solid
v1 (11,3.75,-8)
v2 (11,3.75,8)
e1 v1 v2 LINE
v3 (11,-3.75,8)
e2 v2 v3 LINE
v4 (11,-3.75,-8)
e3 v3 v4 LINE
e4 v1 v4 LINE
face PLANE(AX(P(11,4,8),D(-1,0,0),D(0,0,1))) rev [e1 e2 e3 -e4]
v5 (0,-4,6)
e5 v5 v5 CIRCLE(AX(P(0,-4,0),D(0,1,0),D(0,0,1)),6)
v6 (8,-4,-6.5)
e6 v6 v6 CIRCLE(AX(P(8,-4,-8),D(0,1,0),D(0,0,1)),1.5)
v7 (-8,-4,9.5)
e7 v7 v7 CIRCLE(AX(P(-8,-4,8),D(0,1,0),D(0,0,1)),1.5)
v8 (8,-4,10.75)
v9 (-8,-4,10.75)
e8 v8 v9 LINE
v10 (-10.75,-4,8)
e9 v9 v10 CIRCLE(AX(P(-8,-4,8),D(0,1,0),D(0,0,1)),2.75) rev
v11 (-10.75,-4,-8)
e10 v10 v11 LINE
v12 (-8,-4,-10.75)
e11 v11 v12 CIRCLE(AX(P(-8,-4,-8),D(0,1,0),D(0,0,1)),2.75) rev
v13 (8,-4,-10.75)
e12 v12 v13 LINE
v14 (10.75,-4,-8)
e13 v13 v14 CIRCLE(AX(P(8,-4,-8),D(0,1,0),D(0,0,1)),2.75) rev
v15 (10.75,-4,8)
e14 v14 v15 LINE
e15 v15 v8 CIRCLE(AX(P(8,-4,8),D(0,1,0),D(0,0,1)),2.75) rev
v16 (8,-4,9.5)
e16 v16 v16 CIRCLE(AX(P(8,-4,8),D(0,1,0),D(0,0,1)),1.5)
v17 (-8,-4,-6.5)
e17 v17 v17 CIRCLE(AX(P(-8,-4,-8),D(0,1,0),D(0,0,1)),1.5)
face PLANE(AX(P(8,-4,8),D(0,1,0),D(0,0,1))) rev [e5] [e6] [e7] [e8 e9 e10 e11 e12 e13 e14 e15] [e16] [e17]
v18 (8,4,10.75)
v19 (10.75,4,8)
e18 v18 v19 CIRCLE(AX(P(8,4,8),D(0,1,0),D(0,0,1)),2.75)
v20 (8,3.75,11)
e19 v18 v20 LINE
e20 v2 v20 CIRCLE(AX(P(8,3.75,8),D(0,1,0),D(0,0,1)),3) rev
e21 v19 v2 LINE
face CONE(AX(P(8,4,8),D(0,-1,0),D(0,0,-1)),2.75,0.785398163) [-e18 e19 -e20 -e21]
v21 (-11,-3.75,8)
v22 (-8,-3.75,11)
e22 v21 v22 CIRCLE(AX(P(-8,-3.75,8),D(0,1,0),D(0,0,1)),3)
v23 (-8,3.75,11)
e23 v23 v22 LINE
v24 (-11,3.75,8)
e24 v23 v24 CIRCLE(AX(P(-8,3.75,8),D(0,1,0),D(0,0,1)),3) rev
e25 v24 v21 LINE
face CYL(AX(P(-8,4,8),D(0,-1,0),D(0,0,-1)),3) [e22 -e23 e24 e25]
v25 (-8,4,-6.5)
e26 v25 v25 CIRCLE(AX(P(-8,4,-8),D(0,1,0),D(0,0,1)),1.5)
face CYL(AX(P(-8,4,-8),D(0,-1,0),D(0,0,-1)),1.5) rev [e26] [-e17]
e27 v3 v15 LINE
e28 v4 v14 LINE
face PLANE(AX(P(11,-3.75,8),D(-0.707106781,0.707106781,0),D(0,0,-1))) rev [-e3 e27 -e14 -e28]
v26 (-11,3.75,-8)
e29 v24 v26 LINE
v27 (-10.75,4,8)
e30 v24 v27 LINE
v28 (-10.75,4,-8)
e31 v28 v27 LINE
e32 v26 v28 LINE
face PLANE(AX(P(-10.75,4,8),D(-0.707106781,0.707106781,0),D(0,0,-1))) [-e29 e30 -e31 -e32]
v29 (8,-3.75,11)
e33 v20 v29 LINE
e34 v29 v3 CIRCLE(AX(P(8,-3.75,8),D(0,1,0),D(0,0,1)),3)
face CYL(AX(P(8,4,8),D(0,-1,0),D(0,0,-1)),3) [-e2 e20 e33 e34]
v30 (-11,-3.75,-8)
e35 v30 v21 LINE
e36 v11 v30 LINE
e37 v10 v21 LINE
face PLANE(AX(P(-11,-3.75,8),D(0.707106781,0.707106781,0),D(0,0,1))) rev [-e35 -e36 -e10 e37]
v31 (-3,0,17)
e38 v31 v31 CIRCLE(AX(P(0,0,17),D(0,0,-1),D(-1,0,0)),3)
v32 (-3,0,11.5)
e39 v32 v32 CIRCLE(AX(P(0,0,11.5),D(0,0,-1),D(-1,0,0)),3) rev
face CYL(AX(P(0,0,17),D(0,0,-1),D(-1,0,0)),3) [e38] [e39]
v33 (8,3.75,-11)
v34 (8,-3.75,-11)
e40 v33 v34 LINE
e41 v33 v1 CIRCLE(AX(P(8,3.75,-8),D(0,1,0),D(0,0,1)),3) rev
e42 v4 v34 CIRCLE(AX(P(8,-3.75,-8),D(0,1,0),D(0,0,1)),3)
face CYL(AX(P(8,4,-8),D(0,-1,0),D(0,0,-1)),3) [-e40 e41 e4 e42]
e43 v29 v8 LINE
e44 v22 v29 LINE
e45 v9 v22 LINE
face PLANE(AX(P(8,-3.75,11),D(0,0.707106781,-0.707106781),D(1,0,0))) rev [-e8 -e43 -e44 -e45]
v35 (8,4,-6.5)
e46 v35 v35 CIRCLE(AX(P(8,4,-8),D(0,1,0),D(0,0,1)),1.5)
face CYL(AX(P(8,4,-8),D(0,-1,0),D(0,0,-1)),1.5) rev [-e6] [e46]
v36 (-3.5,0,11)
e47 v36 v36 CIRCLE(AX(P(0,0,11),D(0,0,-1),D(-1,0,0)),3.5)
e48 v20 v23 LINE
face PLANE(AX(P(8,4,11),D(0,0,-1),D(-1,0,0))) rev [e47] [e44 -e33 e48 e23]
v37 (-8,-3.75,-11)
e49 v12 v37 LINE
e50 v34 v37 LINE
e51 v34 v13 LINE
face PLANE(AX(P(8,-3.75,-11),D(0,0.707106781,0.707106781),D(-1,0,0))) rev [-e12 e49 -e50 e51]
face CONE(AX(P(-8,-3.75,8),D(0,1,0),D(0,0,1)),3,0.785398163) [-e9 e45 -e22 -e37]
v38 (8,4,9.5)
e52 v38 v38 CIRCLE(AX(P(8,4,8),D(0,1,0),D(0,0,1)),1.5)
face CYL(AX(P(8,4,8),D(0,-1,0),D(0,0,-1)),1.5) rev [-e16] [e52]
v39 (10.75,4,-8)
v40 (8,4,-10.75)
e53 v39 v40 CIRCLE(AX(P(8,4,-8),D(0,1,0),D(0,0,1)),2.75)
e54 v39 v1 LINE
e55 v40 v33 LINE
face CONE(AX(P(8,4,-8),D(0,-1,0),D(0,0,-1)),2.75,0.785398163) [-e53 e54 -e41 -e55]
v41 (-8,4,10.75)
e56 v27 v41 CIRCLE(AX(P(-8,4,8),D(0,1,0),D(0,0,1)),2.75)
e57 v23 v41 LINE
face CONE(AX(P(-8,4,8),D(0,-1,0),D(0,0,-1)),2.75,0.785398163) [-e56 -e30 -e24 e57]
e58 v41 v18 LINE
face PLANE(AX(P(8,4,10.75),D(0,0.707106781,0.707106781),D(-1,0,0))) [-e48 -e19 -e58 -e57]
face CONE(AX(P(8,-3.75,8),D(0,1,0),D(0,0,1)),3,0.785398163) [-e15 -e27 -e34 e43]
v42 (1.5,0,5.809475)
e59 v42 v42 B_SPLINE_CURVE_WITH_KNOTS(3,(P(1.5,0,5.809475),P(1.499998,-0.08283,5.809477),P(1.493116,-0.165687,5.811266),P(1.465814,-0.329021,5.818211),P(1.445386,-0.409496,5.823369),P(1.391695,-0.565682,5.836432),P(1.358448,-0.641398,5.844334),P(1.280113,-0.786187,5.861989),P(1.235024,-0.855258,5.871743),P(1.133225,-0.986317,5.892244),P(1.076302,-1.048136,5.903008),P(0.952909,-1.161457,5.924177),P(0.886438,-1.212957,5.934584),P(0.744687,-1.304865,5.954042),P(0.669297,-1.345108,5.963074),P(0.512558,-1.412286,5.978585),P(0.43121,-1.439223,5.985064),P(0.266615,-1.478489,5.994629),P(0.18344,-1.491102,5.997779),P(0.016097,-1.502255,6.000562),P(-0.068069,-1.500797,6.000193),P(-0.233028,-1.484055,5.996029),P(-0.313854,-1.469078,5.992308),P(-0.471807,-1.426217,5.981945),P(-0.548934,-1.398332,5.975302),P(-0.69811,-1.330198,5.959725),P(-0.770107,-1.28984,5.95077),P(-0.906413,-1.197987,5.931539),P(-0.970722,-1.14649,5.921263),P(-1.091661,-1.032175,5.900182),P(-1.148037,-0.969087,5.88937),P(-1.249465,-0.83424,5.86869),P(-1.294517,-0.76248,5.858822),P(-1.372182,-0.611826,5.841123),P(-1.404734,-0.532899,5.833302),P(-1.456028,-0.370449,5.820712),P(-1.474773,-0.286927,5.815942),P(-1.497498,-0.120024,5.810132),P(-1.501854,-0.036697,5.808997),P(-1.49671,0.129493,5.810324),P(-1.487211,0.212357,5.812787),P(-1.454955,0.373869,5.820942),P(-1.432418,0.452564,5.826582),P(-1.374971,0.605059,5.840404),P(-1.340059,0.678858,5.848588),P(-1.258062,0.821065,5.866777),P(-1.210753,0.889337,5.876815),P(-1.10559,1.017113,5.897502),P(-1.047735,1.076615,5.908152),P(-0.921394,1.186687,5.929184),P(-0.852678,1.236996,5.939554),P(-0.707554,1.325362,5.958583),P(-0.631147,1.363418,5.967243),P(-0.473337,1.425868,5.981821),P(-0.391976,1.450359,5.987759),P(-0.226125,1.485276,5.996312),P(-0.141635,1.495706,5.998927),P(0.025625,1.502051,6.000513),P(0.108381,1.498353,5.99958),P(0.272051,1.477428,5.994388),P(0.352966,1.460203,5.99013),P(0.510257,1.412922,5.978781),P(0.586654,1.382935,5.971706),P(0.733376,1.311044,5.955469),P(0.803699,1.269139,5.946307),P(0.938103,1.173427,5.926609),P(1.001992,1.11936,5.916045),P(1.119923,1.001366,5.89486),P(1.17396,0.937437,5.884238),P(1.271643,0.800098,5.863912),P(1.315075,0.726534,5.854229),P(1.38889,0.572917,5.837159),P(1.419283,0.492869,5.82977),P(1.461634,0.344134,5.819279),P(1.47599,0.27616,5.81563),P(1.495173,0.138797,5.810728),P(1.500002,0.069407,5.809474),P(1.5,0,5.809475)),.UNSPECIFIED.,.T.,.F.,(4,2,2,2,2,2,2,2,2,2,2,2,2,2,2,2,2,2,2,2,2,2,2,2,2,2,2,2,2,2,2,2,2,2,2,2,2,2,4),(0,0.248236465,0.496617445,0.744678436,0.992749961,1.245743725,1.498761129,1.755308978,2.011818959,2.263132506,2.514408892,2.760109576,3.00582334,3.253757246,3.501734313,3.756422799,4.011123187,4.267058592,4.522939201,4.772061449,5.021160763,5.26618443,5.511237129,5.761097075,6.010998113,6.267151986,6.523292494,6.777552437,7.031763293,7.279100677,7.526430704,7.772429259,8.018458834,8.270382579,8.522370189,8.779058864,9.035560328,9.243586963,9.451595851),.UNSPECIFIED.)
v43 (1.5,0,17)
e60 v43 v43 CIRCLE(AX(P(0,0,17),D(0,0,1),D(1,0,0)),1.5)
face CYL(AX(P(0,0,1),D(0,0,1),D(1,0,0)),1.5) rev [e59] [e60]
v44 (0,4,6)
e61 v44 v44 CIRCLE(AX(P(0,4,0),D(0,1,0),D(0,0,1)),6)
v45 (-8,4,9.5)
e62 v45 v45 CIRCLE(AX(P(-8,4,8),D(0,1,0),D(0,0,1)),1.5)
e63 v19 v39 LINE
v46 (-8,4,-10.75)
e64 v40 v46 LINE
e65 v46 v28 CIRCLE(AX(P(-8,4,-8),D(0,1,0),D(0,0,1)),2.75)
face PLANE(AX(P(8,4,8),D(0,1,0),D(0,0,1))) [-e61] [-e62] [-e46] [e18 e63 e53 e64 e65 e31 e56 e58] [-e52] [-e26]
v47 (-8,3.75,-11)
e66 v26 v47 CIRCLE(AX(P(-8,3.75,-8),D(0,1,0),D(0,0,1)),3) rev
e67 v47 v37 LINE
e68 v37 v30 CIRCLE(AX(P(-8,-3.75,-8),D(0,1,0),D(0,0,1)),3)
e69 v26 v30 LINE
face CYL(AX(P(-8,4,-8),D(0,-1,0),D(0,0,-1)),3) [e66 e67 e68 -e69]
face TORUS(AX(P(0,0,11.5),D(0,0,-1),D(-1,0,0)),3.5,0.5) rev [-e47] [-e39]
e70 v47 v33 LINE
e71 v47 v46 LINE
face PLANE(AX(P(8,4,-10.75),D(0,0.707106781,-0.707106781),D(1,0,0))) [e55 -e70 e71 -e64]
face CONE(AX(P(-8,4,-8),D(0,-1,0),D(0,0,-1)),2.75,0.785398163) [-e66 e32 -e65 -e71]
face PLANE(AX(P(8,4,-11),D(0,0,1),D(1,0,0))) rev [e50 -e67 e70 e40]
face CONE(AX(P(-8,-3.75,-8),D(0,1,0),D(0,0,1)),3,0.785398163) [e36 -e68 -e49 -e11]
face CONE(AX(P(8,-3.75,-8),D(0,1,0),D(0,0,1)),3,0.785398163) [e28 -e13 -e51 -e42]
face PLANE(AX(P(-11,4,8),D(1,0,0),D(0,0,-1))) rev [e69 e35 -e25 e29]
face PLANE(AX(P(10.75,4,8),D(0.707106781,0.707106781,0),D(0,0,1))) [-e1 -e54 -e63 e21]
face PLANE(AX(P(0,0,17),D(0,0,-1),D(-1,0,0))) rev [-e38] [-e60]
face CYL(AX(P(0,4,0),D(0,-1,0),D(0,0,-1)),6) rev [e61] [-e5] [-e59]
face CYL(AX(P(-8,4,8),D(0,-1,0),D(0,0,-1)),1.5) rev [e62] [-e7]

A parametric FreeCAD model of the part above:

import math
import FreeCAD as App
import Part
import Sketcher
from FreeCAD import Vector


def edges_at(feature, points):
    """Names of the edges that pass closest to the given points."""
    edges = feature.Shape.Edges
    near = lambda p: min(range(len(edges)), key=lambda i: edges[i].distToShape(Part.Vertex(*p))[0])
    return sorted({f"Edge{near(p) + 1}" for p in points})

doc = App.newDocument("Part")
params = doc.addObject("Spreadsheet::Sheet", "Params")
for row, (alias, value) in enumerate([
    ("sketch1_diameter", "3 mm"),
    ("sketch1_diameter2", "12 mm"),
    ("sketch1_radius", "3 mm"),
    ("sketch1_width", "16 mm"),
    ("pad1_length", "8 mm"),
    ("sketch2_diameter", "6 mm"),
    ("pad2_length", "6 mm"),
    ("sketch3_diameter", "3 mm"),
    ("pocket1_length", "16 mm"),
    ("chamfer_size", "0.25 mm"),
    ("fillet_radius", "0.5 mm"),
], start=1):
    params.set(f"A{row}", alias)
    params.set(f"B{row}", "=" + value)
    params.setAlias(f"B{row}", alias)

body = doc.addObject("PartDesign::Body", "Body")

sketch1 = body.newObject("Sketcher::SketchObject", "Sketch")
sketch1.AttachmentSupport = (doc.getObject("XZ_Plane"), [""])
sketch1.MapMode = "FlatFace"
sketch1.addGeometry([
    Part.LineSegment(Vector(-8, 11, 0), Vector(8, 11, 0)),
    Part.ArcOfCircle(Part.Circle(Vector(8, 8, 0), Vector(0, 0, 1), 3), math.radians(0), math.radians(90)),
    Part.LineSegment(Vector(11, 8, 0), Vector(11, -8, 0)),
    Part.ArcOfCircle(Part.Circle(Vector(8, -8, 0), Vector(0, 0, 1), 3), math.radians(-90), math.radians(0)),
    Part.LineSegment(Vector(8, -11, 0), Vector(-8, -11, 0)),
    Part.ArcOfCircle(Part.Circle(Vector(-8, -8, 0), Vector(0, 0, 1), 3), math.radians(180), math.radians(270)),
    Part.LineSegment(Vector(-11, -8, 0), Vector(-11, 8, 0)),
    Part.ArcOfCircle(Part.Circle(Vector(-8, 8, 0), Vector(0, 0, 1), 3), math.radians(90), math.radians(180)),
    Part.Circle(Vector(8, 8, 0), Vector(0, 0, 1), 1.5),
    Part.Circle(Vector(-8, 8, 0), Vector(0, 0, 1), 1.5),
    Part.Circle(Vector(8, -8, 0), Vector(0, 0, 1), 1.5),
    Part.Circle(Vector(0, 0, 0), Vector(0, 0, 1), 6),
    Part.Circle(Vector(-8, -8, 0), Vector(0, 0, 1), 1.5),
], False)
sketch1.addConstraint([
    Sketcher.Constraint("Tangent", 0, 2, 1, 2),
    Sketcher.Constraint("Tangent", 1, 1, 2, 1),
    Sketcher.Constraint("Tangent", 2, 2, 3, 2),
    Sketcher.Constraint("Tangent", 3, 1, 4, 1),
    Sketcher.Constraint("Tangent", 4, 2, 5, 2),
    Sketcher.Constraint("Tangent", 5, 1, 6, 1),
    Sketcher.Constraint("Tangent", 6, 2, 7, 2),
    Sketcher.Constraint("Tangent", 7, 1, 0, 1),
    Sketcher.Constraint("Horizontal", 0),
    Sketcher.Constraint("Vertical", 2),
    Sketcher.Constraint("Horizontal", 4),
    Sketcher.Constraint("Vertical", 6),
    Sketcher.Constraint("Coincident", 11, 3, -1, 1),
    Sketcher.Constraint("Coincident", 8, 3, 1, 3),
    Sketcher.Constraint("Coincident", 9, 3, 7, 3),
    Sketcher.Constraint("Coincident", 10, 3, 3, 3),
    Sketcher.Constraint("Coincident", 12, 3, 5, 3),
    Sketcher.Constraint("Equal", 1, 3),
    Sketcher.Constraint("Equal", 3, 5),
    Sketcher.Constraint("Equal", 5, 7),
    Sketcher.Constraint("Equal", 8, 9),
    Sketcher.Constraint("Equal", 9, 10),
    Sketcher.Constraint("Equal", 10, 12),
    Sketcher.Constraint("Symmetric", 1, 3, 5, 3, -1, 1),
    Sketcher.Constraint("Equal", 4, 2),
    Sketcher.Constraint("Diameter", 8, 3.0),
    Sketcher.Constraint("Diameter", 11, 12.0),
    Sketcher.Constraint("Radius", 1, 3.0),
    Sketcher.Constraint("DistanceX", 0, 1, 0, 2, 16.0),
])
sketch1.setExpression("Constraints[25]", "Params.sketch1_diameter")
sketch1.setExpression("Constraints[26]", "Params.sketch1_diameter2")
sketch1.setExpression("Constraints[27]", "Params.sketch1_radius")
sketch1.setExpression("Constraints[28]", "Params.sketch1_width")
pad1 = body.newObject("PartDesign::Pad", "Pad")
pad1.Profile = sketch1
pad1.setExpression("Length", "Params.pad1_length")
pad1.Midplane = True

sketch2 = body.newObject("Sketcher::SketchObject", "Sketch001")
sketch2.AttachmentSupport = (doc.getObject("XY_Plane"), [""])
sketch2.MapMode = "FlatFace"
sketch2.AttachmentOffset = App.Placement(Vector(0, 0, 11), App.Rotation())
sketch2.addGeometry(Part.Circle(Vector(0, 0, 0), Vector(0, 0, 1), 3), False)
sketch2.addConstraint([
    Sketcher.Constraint("Coincident", 0, 3, -1, 1),
    Sketcher.Constraint("Diameter", 0, 6.0),
])
sketch2.setExpression("Constraints[1]", "Params.sketch2_diameter")
pad2 = body.newObject("PartDesign::Pad", "Pad001")
pad2.Profile = sketch2
pad2.setExpression("Length", "Params.pad2_length")

sketch3 = body.newObject("Sketcher::SketchObject", "Sketch002")
sketch3.AttachmentSupport = (doc.getObject("XY_Plane"), [""])
sketch3.MapMode = "FlatFace"
sketch3.AttachmentOffset = App.Placement(Vector(0, 0, 17), App.Rotation())
sketch3.addGeometry(Part.Circle(Vector(0, 0, 0), Vector(0, 0, 1), 1.5), False)
sketch3.addConstraint([
    Sketcher.Constraint("Coincident", 0, 3, -1, 1),
    Sketcher.Constraint("Diameter", 0, 3.0),
])
sketch3.setExpression("Constraints[1]", "Params.sketch3_diameter")
pocket1 = body.newObject("PartDesign::Pocket", "Pocket")
pocket1.Profile = sketch3
pocket1.setExpression("Length", "Params.pocket1_length")
doc.recompute()

chamfer = body.newObject("PartDesign::Chamfer", "Chamfer")
chamfer.Base = (pocket1, edges_at(pocket1, [
    (0, -4, -11),
    (10.121, -4, -10.121),
    (11, -4, 0),
    (10.121, -4, 10.121),
    (10.121, 4, -10.121),
    (0, 4, -11),
    (-10.121, 4, -10.121),
    (-11, 4, 0),
    (-10.121, 4, 10.121),
    (0, 4, 11),
    (10.121, 4, 10.121),
    (0, -4, 11),
    (11, 4, 0),
    (-10.121, -4, 10.121),
    (-11, -4, 0),
    (-10.121, -4, -10.121),
]))
chamfer.setExpression("Size", "Params.chamfer_size")
doc.recompute()

fillet = body.newObject("PartDesign::Fillet", "Fillet")
fillet.Base = (chamfer, edges_at(chamfer, [(3, 0, 11)]))
fillet.setExpression("Radius", "Params.fillet_radius")

doc.recompute()
